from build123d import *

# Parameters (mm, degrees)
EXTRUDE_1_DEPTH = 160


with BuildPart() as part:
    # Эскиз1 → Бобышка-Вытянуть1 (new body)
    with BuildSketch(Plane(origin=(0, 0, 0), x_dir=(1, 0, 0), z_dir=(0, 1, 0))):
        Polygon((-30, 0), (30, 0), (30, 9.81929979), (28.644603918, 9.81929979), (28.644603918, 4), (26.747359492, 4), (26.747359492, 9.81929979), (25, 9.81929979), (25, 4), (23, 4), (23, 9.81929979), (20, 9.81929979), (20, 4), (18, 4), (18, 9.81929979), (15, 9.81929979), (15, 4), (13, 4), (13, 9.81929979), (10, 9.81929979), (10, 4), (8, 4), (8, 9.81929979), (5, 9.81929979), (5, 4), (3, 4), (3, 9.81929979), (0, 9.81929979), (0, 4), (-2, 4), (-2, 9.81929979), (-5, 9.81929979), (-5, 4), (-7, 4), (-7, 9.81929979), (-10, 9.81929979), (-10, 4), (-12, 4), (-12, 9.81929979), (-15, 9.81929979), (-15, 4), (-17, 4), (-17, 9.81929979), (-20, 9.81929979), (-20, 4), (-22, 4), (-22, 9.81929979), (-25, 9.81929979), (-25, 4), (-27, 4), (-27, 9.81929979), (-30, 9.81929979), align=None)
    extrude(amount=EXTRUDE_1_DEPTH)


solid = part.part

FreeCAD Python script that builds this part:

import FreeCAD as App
import Part
import Sketcher
from FreeCAD import Vector
Q = App.Units.Quantity

doc = App.newDocument("Part")
params = doc.addObject("Spreadsheet::Sheet", "Params")
for row, (alias, value) in enumerate([
    ("sketch1_width", "60 mm"),
    ("sketch1_width2", "2 mm"),
    ("pad1_length", "160 mm"),
], start=1):
    params.set(f"A{row}", alias)
    params.set(f"B{row}", "=" + value)
    params.setAlias(f"B{row}", alias)

body = doc.addObject("PartDesign::Body", "Body")

# Sketch on XZ plane
sketch1 = body.newObject("Sketcher::SketchObject", "Sketch")
sketch1.AttachmentSupport = (doc.getObject("XZ_Plane"), [""])
sketch1.MapMode = "FlatFace"
sketch1.addGeometry(Part.LineSegment(Vector(-30, 0, 0), Vector(30, 0, 0)), False)
sketch1.addGeometry(Part.LineSegment(Vector(30, 0, 0), Vector(30, -9.8, 0)), False)
sketch1.addGeometry(Part.LineSegment(Vector(30, -9.8, 0), Vector(28.6, -9.8, 0)), False)
sketch1.addGeometry(Part.LineSegment(Vector(28.6, -9.8, 0), Vector(28.6, -4, 0)), False)
sketch1.addGeometry(Part.LineSegment(Vector(28.6, -4, 0), Vector(26.7, -4, 0)), False)
sketch1.addGeometry(Part.LineSegment(Vector(26.7, -4, 0), Vector(26.7, -9.8, 0)), False)
sketch1.addGeometry(Part.LineSegment(Vector(26.7, -9.8, 0), Vector(25, -9.8, 0)), False)
sketch1.addGeometry(Part.LineSegment(Vector(25, -9.8, 0), Vector(25, -4, 0)), False)
sketch1.addGeometry(Part.LineSegment(Vector(25, -4, 0), Vector(23, -4, 0)), False)
sketch1.addGeometry(Part.LineSegment(Vector(23, -4, 0), Vector(23, -9.8, 0)), False)
sketch1.addGeometry(Part.LineSegment(Vector(23, -9.8, 0), Vector(20, -9.8, 0)), False)
sketch1.addGeometry(Part.LineSegment(Vector(20, -9.8, 0), Vector(20, -4, 0)), False)
sketch1.addGeometry(Part.LineSegment(Vector(20, -4, 0), Vector(18, -4, 0)), False)
sketch1.addGeometry(Part.LineSegment(Vector(18, -4, 0), Vector(18, -9.8, 0)), False)
sketch1.addGeometry(Part.LineSegment(Vector(18, -9.8, 0), Vector(15, -9.8, 0)), False)
sketch1.addGeometry(Part.LineSegment(Vector(15, -9.8, 0), Vector(15, -4, 0)), False)
sketch1.addGeometry(Part.LineSegment(Vector(15, -4, 0), Vector(13, -4, 0)), False)
sketch1.addGeometry(Part.LineSegment(Vector(13, -4, 0), Vector(13, -9.8, 0)), False)
sketch1.addGeometry(Part.LineSegment(Vector(13, -9.8, 0), Vector(10, -9.8, 0)), False)
sketch1.addGeometry(Part.LineSegment(Vector(10, -9.8, 0), Vector(10, -4, 0)), False)
sketch1.addGeometry(Part.LineSegment(Vector(10, -4, 0), Vector(8, -4, 0)), False)
sketch1.addGeometry(Part.LineSegment(Vector(8, -4, 0), Vector(8, -9.8, 0)), False)
sketch1.addGeometry(Part.LineSegment(Vector(8, -9.8, 0), Vector(5, -9.8, 0)), False)
sketch1.addGeometry(Part.LineSegment(Vector(5, -9.8, 0), Vector(5, -4, 0)), False)
sketch1.addGeometry(Part.LineSegment(Vector(5, -4, 0), Vector(3, -4, 0)), False)
sketch1.addGeometry(Part.LineSegment(Vector(3, -4, 0), Vector(3, -9.8, 0)), False)
sketch1.addGeometry(Part.LineSegment(Vector(3, -9.8, 0), Vector(0, -9.8, 0)), False)
sketch1.addGeometry(Part.LineSegment(Vector(0, -9.8, 0), Vector(0, -4, 0)), False)
sketch1.addGeometry(Part.LineSegment(Vector(0, -4, 0), Vector(-2, -4, 0)), False)
sketch1.addGeometry(Part.LineSegment(Vector(-2, -4, 0), Vector(-2, -9.8, 0)), False)
sketch1.addGeometry(Part.LineSegment(Vector(-2, -9.8, 0), Vector(-5, -9.8, 0)), False)
sketch1.addGeometry(Part.LineSegment(Vector(-5, -9.8, 0), Vector(-5, -4, 0)), False)
sketch1.addGeometry(Part.LineSegment(Vector(-5, -4, 0), Vector(-7, -4, 0)), False)
sketch1.addGeometry(Part.LineSegment(Vector(-7, -4, 0), Vector(-7, -9.8, 0)), False)
sketch1.addGeometry(Part.LineSegment(Vector(-7, -9.8, 0), Vector(-10, -9.8, 0)), False)
sketch1.addGeometry(Part.LineSegment(Vector(-10, -9.8, 0), Vector(-10, -4, 0)), False)
sketch1.addGeometry(Part.LineSegment(Vector(-10, -4, 0), Vector(-12, -4, 0)), False)
sketch1.addGeometry(Part.LineSegment(Vector(-12, -4, 0), Vector(-12, -9.8, 0)), False)
sketch1.addGeometry(Part.LineSegment(Vector(-12, -9.8, 0), Vector(-15, -9.8, 0)), False)
sketch1.addGeometry(Part.LineSegment(Vector(-15, -9.8, 0), Vector(-15, -4, 0)), False)
sketch1.addGeometry(Part.LineSegment(Vector(-15, -4, 0), Vector(-17, -4, 0)), False)
sketch1.addGeometry(Part.LineSegment(Vector(-17, -4, 0), Vector(-17, -9.8, 0)), False)
sketch1.addGeometry(Part.LineSegment(Vector(-17, -9.8, 0), Vector(-20, -9.8, 0)), False)
sketch1.addGeometry(Part.LineSegment(Vector(-20, -9.8, 0), Vector(-20, -4, 0)), False)
sketch1.addGeometry(Part.LineSegment(Vector(-20, -4, 0), Vector(-22, -4, 0)), False)
sketch1.addGeometry(Part.LineSegment(Vector(-22, -4, 0), Vector(-22, -9.8, 0)), False)
sketch1.addGeometry(Part.LineSegment(Vector(-22, -9.8, 0), Vector(-25, -9.8, 0)), False)
sketch1.addGeometry(Part.LineSegment(Vector(-25, -9.8, 0), Vector(-25, -4, 0)), False)
sketch1.addGeometry(Part.LineSegment(Vector(-25, -4, 0), Vector(-27, -4, 0)), False)
sketch1.addGeometry(Part.LineSegment(Vector(-27, -4, 0), Vector(-27, -9.8, 0)), False)
sketch1.addGeometry(Part.LineSegment(Vector(-27, -9.8, 0), Vector(-30, -9.8, 0)), False)
sketch1.addGeometry(Part.LineSegment(Vector(-30, -9.8, 0), Vector(-30, 0, 0)), False)
sketch1.addConstraint(Sketcher.Constraint("Coincident", 0, 2, 1, 1))
sketch1.addConstraint(Sketcher.Constraint("Coincident", 1, 2, 2, 1))
sketch1.addConstraint(Sketcher.Constraint("Coincident", 2, 2, 3, 1))
sketch1.addConstraint(Sketcher.Constraint("Coincident", 3, 2, 4, 1))
sketch1.addConstraint(Sketcher.Constraint("Coincident", 4, 2, 5, 1))
sketch1.addConstraint(Sketcher.Constraint("Coincident", 5, 2, 6, 1))
sketch1.addConstraint(Sketcher.Constraint("Coincident", 6, 2, 7, 1))
sketch1.addConstraint(Sketcher.Constraint("Coincident", 7, 2, 8, 1))
sketch1.addConstraint(Sketcher.Constraint("Coincident", 8, 2, 9, 1))
sketch1.addConstraint(Sketcher.Constraint("Coincident", 9, 2, 10, 1))
sketch1.addConstraint(Sketcher.Constraint("Coincident", 10, 2, 11, 1))
sketch1.addConstraint(Sketcher.Constraint("Coincident", 11, 2, 12, 1))
sketch1.addConstraint(Sketcher.Constraint("Coincident", 12, 2, 13, 1))
sketch1.addConstraint(Sketcher.Constraint("Coincident", 13, 2, 14, 1))
sketch1.addConstraint(Sketcher.Constraint("Coincident", 14, 2, 15, 1))
sketch1.addConstraint(Sketcher.Constraint("Coincident", 15, 2, 16, 1))
sketch1.addConstraint(Sketcher.Constraint("Coincident", 16, 2, 17, 1))
sketch1.addConstraint(Sketcher.Constraint("Coincident", 17, 2, 18, 1))
sketch1.addConstraint(Sketcher.Constraint("Coincident", 18, 2, 19, 1))
sketch1.addConstraint(Sketcher.Constraint("Coincident", 19, 2, 20, 1))
sketch1.addConstraint(Sketcher.Constraint("Coincident", 20, 2, 21, 1))
sketch1.addConstraint(Sketcher.Constraint("Coincident", 21, 2, 22, 1))
sketch1.addConstraint(Sketcher.Constraint("Coincident", 22, 2, 23, 1))
sketch1.addConstraint(Sketcher.Constraint("Coincident", 23, 2, 24, 1))
sketch1.addConstraint(Sketcher.Constraint("Coincident", 24, 2, 25, 1))
sketch1.addConstraint(Sketcher.Constraint("Coincident", 25, 2, 26, 1))
sketch1.addConstraint(Sketcher.Constraint("Coincident", 26, 2, 27, 1))
sketch1.addConstraint(Sketcher.Constraint("Coincident", 27, 2, 28, 1))
sketch1.addConstraint(Sketcher.Constraint("Coincident", 28, 2, 29, 1))
sketch1.addConstraint(Sketcher.Constraint("Coincident", 29, 2, 30, 1))
sketch1.addConstraint(Sketcher.Constraint("Coincident", 30, 2, 31, 1))
sketch1.addConstraint(Sketcher.Constraint("Coincident", 31, 2, 32, 1))
sketch1.addConstraint(Sketcher.Constraint("Coincident", 32, 2, 33, 1))
sketch1.addConstraint(Sketcher.Constraint("Coincident", 33, 2, 34, 1))
sketch1.addConstraint(Sketcher.Constraint("Coincident", 34, 2, 35, 1))
sketch1.addConstraint(Sketcher.Constraint("Coincident", 35, 2, 36, 1))
sketch1.addConstraint(Sketcher.Constraint("Coincident", 36, 2, 37, 1))
sketch1.addConstraint(Sketcher.Constraint("Coincident", 37, 2, 38, 1))
sketch1.addConstraint(Sketcher.Constraint("Coincident", 38, 2, 39, 1))
sketch1.addConstraint(Sketcher.Constraint("Coincident", 39, 2, 40, 1))
sketch1.addConstraint(Sketcher.Constraint("Coincident", 40, 2, 41, 1))
sketch1.addConstraint(Sketcher.Constraint("Coincident", 41, 2, 42, 1))
sketch1.addConstraint(Sketcher.Constraint("Coincident", 42, 2, 43, 1))
sketch1.addConstraint(Sketcher.Constraint("Coincident", 43, 2, 44, 1))
sketch1.addConstraint(Sketcher.Constraint("Coincident", 44, 2, 45, 1))
sketch1.addConstraint(Sketcher.Constraint("Coincident", 45, 2, 46, 1))
sketch1.addConstraint(Sketcher.Constraint("Coincident", 46, 2, 47, 1))
sketch1.addConstraint(Sketcher.Constraint("Coincident", 47, 2, 48, 1))
sketch1.addConstraint(Sketcher.Constraint("Coincident", 48, 2, 49, 1))
sketch1.addConstraint(Sketcher.Constraint("Coincident", 49, 2, 50, 1))
sketch1.addConstraint(Sketcher.Constraint("Coincident", 50, 2, 51, 1))
sketch1.addConstraint(Sketcher.Constraint("Coincident", 51, 2, 0, 1))
sketch1.addConstraint(Sketcher.Constraint("Horizontal", 0))
sketch1.addConstraint(Sketcher.Constraint("Vertical", 1))
sketch1.addConstraint(Sketcher.Constraint("Horizontal", 2))
sketch1.addConstraint(Sketcher.Constraint("Vertical", 3))
sketch1.addConstraint(Sketcher.Constraint("Horizontal", 4))
sketch1.addConstraint(Sketcher.Constraint("Vertical", 5))
sketch1.addConstraint(Sketcher.Constraint("Horizontal", 6))
sketch1.addConstraint(Sketcher.Constraint("Vertical", 7))
sketch1.addConstraint(Sketcher.Constraint("Horizontal", 8))
sketch1.addConstraint(Sketcher.Constraint("Vertical", 9))
sketch1.addConstraint(Sketcher.Constraint("Horizontal", 10))
sketch1.addConstraint(Sketcher.Constraint("Vertical", 11))
sketch1.addConstraint(Sketcher.Constraint("Horizontal", 12))
sketch1.addConstraint(Sketcher.Constraint("Vertical", 13))
sketch1.addConstraint(Sketcher.Constraint("Horizontal", 14))
sketch1.addConstraint(Sketcher.Constraint("Vertical", 15))
sketch1.addConstraint(Sketcher.Constraint("Horizontal", 16))
sketch1.addConstraint(Sketcher.Constraint("Vertical", 17))
sketch1.addConstraint(Sketcher.Constraint("Horizontal", 18))
sketch1.addConstraint(Sketcher.Constraint("Vertical", 19))
sketch1.addConstraint(Sketcher.Constraint("Horizontal", 20))
sketch1.addConstraint(Sketcher.Constraint("Vertical", 21))
sketch1.addConstraint(Sketcher.Constraint("Horizontal", 22))
sketch1.addConstraint(Sketcher.Constraint("Vertical", 23))
sketch1.addConstraint(Sketcher.Constraint("Horizontal", 24))
sketch1.addConstraint(Sketcher.Constraint("Vertical", 25))
sketch1.addConstraint(Sketcher.Constraint("Horizontal", 26))
sketch1.addConstraint(Sketcher.Constraint("Vertical", 27))
sketch1.addConstraint(Sketcher.Constraint("Horizontal", 28))
sketch1.addConstraint(Sketcher.Constraint("Vertical", 29))
sketch1.addConstraint(Sketcher.Constraint("Horizontal", 30))
sketch1.addConstraint(Sketcher.Constraint("Vertical", 31))
sketch1.addConstraint(Sketcher.Constraint("Horizontal", 32))
sketch1.addConstraint(Sketcher.Constraint("Vertical", 33))
sketch1.addConstraint(Sketcher.Constraint("Horizontal", 34))
sketch1.addConstraint(Sketcher.Constraint("Vertical", 35))
sketch1.addConstraint(Sketcher.Constraint("Horizontal", 36))
sketch1.addConstraint(Sketcher.Constraint("Vertical", 37))
sketch1.addConstraint(Sketcher.Constraint("Horizontal", 38))
sketch1.addConstraint(Sketcher.Constraint("Vertical", 39))
sketch1.addConstraint(Sketcher.Constraint("Horizontal", 40))
sketch1.addConstraint(Sketcher.Constraint("Vertical", 41))
sketch1.addConstraint(Sketcher.Constraint("Horizontal", 42))
sketch1.addConstraint(Sketcher.Constraint("Vertical", 43))
sketch1.addConstraint(Sketcher.Constraint("Horizontal", 44))
sketch1.addConstraint(Sketcher.Constraint("Vertical", 45))
sketch1.addConstraint(Sketcher.Constraint("Horizontal", 46))
sketch1.addConstraint(Sketcher.Constraint("Vertical", 47))
sketch1.addConstraint(Sketcher.Constraint("Horizontal", 48))
sketch1.addConstraint(Sketcher.Constraint("Vertical", 49))
sketch1.addConstraint(Sketcher.Constraint("Horizontal", 50))
sketch1.addConstraint(Sketcher.Constraint("Vertical", 51))
sketch1.addConstraint(Sketcher.Constraint("Symmetric", 0, 2, 51, 2, -1, 1))
sketch1.addConstraint(Sketcher.Constraint("Symmetric", 22, 2, 30, 2, -2))
sketch1.addConstraint(Sketcher.Constraint("Symmetric", 18, 2, 34, 2, -2))
sketch1.addConstraint(Sketcher.Constraint("Symmetric", 14, 2, 38, 2, -2))
sketch1.addConstraint(Sketcher.Constraint("Symmetric", 10, 2, 42, 2, -2))
sketch1.addConstraint(Sketcher.Constraint("Symmetric", 6, 2, 46, 2, -2))
sketch1.addConstraint(Sketcher.Constraint("PointOnObject", 26, 2, -2))
sketch1.addConstraint(Sketcher.Constraint("Horizontal", 2, 2, 5, 2))
sketch1.addConstraint(Sketcher.Constraint("Horizontal", 4, 2, 7, 2))
sketch1.addConstraint(Sketcher.Constraint("Horizontal", 6, 2, 9, 2))
sketch1.addConstraint(Sketcher.Constraint("Horizontal", 8, 2, 11, 2))
sketch1.addConstraint(Sketcher.Constraint("Horizontal", 10, 2, 13, 2))
sketch1.addConstraint(Sketcher.Constraint("Horizontal", 12, 2, 15, 2))
sketch1.addConstraint(Sketcher.Constraint("Horizontal", 14, 2, 17, 2))
sketch1.addConstraint(Sketcher.Constraint("Horizontal", 16, 2, 19, 2))
sketch1.addConstraint(Sketcher.Constraint("Horizontal", 18, 2, 21, 2))
sketch1.addConstraint(Sketcher.Constraint("Horizontal", 20, 2, 23, 2))
sketch1.addConstraint(Sketcher.Constraint("Horizontal", 22, 2, 25, 2))
sketch1.addConstraint(Sketcher.Constraint("Horizontal", 24, 2, 27, 2))
sketch1.addConstraint(Sketcher.Constraint("Horizontal", 28, 2, 31, 2))
sketch1.addConstraint(Sketcher.Constraint("Horizontal", 32, 2, 35, 2))
sketch1.addConstraint(Sketcher.Constraint("Horizontal", 36, 2, 39, 2))
sketch1.addConstraint(Sketcher.Constraint("Horizontal", 40, 2, 43, 2))
sketch1.addConstraint(Sketcher.Constraint("Horizontal", 44, 2, 47, 2))
sketch1.addConstraint(Sketcher.Constraint("Horizontal", 46, 2, 49, 2))
sketch1.addConstraint(Sketcher.Constraint("Equal", 8, 12))
sketch1.addConstraint(Sketcher.Constraint("Equal", 10, 14))
sketch1.addConstraint(Sketcher.Constraint("Equal", 12, 16))
sketch1.addConstraint(Sketcher.Constraint("Equal", 14, 18))
sketch1.addConstraint(Sketcher.Constraint("Equal", 16, 20))
sketch1.addConstraint(Sketcher.Constraint("Equal", 18, 22))
sketch1.addConstraint(Sketcher.Constraint("Equal", 20, 24))
sketch1.addConstraint(Sketcher.Constraint("Equal", 22, 26))
sketch1.addConstraint(Sketcher.Constraint("Equal", 24, 28))
sketch1.addConstraint(Sketcher.Constraint("Equal", 28, 32))
sketch1.addConstraint(Sketcher.Constraint("Equal", 32, 36))
sketch1.addConstraint(Sketcher.Constraint("Equal", 36, 40))
sketch1.addConstraint(Sketcher.Constraint("Equal", 40, 44))
sketch1.addConstraint(Sketcher.Constraint("Equal", 44, 48))
sketch1.addConstraint(Sketcher.Constraint("Equal", 46, 50))
sketch1.addConstraint(Sketcher.Constraint("DistanceX", 0, 1, 0, 2, Q("60 mm")))
sketch1.addConstraint(Sketcher.Constraint("DistanceX", 8, 2, 8, 1, Q("2 mm")))
sketch1.addConstraint(Sketcher.Constraint("DistanceY", 3, 2, -1, 1, Q("4 mm")))
sketch1.addConstraint(Sketcher.Constraint("DistanceY", 1, 2, 1, 1, Q("9.8193 mm")))
sketch1.addConstraint(Sketcher.Constraint("DistanceX", 6, 2, 6, 1, Q("1.747359 mm")))
sketch1.addConstraint(Sketcher.Constraint("DistanceX", 2, 2, 2, 1, Q("1.355396 mm")))
sketch1.setExpression("Constraints[144]", "Params.sketch1_width")
sketch1.setExpression("Constraints[145]", "Params.sketch1_width2")
pad1 = body.newObject("PartDesign::Pad", "Pad")
pad1.Profile = sketch1
pad1.setExpression("Length", "Params.pad1_length")
pad1.Reversed = True

doc.recompute()
